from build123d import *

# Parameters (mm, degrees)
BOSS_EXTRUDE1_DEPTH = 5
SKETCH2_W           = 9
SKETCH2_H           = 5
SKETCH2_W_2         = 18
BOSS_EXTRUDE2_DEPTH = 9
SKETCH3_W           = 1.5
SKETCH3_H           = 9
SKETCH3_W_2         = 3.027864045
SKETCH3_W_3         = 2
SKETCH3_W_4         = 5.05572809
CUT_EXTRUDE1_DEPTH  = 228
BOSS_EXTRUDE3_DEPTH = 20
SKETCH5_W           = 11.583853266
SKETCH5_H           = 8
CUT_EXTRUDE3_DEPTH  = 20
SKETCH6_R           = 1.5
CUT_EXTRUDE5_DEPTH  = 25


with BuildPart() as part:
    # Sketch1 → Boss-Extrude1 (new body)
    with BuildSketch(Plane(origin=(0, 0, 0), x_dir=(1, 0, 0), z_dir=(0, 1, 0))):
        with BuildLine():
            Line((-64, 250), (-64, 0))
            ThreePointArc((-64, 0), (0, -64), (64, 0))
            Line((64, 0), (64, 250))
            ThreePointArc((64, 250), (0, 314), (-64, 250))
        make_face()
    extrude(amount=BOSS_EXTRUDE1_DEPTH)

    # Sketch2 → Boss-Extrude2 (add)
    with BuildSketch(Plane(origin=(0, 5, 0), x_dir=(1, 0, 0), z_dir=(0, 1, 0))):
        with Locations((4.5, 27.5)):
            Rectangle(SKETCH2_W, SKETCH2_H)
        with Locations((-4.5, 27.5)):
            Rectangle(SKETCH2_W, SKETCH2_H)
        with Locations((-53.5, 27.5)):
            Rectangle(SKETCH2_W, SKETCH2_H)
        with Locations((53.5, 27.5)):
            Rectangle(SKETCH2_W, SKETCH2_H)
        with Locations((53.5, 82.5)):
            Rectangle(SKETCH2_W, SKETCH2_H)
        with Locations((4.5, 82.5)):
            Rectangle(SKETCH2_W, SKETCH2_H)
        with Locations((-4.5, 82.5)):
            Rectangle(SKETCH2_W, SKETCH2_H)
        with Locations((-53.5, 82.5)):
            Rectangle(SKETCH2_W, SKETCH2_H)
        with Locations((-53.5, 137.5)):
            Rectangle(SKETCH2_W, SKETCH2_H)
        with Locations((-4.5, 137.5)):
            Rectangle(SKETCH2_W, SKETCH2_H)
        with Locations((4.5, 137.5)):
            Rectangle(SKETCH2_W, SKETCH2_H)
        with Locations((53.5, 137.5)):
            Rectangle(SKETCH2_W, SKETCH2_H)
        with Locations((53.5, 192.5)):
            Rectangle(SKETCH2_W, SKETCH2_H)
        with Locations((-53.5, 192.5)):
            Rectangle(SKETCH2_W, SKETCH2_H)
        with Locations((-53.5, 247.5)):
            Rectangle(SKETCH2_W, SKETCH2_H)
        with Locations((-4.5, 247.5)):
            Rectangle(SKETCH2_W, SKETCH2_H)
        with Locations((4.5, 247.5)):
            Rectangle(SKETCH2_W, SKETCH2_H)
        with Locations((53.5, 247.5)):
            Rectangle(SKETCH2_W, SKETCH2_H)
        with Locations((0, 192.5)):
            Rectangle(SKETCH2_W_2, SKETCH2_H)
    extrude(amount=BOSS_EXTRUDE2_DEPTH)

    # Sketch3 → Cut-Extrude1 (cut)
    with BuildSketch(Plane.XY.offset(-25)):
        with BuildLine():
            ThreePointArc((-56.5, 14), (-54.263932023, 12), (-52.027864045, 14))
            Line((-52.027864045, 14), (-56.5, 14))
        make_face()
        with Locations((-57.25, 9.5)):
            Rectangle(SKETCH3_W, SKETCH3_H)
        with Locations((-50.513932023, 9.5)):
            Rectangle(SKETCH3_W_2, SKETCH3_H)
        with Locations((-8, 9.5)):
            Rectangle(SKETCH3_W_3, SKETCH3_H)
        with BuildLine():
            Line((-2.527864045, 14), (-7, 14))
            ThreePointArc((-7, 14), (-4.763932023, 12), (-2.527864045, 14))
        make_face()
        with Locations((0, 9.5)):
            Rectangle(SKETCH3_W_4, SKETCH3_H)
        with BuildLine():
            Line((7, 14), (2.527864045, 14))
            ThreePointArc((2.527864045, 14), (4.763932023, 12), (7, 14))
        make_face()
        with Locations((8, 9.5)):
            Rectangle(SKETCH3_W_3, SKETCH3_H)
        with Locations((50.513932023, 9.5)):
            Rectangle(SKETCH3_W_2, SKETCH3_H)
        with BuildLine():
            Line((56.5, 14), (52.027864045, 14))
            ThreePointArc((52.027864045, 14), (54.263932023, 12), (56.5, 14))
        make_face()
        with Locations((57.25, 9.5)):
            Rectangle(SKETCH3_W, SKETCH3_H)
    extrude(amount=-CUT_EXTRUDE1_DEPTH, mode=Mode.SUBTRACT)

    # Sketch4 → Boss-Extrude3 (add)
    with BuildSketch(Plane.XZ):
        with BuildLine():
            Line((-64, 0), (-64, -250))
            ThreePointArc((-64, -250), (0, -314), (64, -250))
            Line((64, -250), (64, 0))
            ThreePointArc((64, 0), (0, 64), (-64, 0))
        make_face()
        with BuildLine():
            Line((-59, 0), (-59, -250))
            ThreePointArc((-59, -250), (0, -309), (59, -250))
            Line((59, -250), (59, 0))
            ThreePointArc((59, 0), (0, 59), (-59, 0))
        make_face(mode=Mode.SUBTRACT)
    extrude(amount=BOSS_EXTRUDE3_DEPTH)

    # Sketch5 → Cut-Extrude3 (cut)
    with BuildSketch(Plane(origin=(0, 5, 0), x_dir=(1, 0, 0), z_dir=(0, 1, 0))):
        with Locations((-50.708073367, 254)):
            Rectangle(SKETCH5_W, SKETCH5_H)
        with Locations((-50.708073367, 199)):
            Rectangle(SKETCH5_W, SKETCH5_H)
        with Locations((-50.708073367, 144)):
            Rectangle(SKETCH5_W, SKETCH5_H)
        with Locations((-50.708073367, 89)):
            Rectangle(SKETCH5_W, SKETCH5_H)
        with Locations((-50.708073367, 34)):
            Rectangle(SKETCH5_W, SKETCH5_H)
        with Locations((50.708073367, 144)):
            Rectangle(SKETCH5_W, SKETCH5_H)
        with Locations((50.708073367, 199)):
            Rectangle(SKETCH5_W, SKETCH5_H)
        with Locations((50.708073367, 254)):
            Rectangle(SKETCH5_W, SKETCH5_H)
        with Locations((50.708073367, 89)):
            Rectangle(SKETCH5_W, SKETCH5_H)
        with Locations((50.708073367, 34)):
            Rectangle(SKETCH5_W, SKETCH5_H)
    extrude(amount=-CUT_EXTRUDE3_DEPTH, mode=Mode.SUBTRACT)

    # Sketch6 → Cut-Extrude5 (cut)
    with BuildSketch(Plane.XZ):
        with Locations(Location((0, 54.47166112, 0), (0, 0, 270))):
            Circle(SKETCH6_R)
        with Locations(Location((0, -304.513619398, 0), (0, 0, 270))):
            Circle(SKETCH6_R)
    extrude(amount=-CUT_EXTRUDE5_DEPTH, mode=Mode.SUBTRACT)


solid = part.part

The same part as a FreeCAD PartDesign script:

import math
import FreeCAD as App
import Part
import Sketcher

doc = App.newDocument("Part")
body = doc.addObject("PartDesign::Body", "Body")

# Sketch on XZ plane
sketch1 = doc.addObject("Sketcher::SketchObject", "Sketch")
body.addObject(sketch1)
sketch1.AttachmentSupport = (doc.XZ_Plane, [""])
sketch1.MapMode = "FlatFace"
sketch1.addGeometry(Part.LineSegment(App.Vector(-64, -250, 0), App.Vector(-64, 0, 0)), False)
sketch1.addGeometry(Part.ArcOfCircle(Part.Circle(App.Vector(0, 0, 0), App.Vector(0, 0, 1), 64), math.radians(0), math.radians(180)), False)
sketch1.addGeometry(Part.LineSegment(App.Vector(64, 0, 0), App.Vector(64, -250, 0)), False)
sketch1.addGeometry(Part.ArcOfCircle(Part.Circle(App.Vector(0, -250, 0), App.Vector(0, 0, 1), 64), math.radians(180), math.radians(360)), False)
sketch1.addConstraint(Sketcher.Constraint("Tangent", 0, 2, 1, 2))
sketch1.addConstraint(Sketcher.Constraint("Tangent", 1, 1, 2, 1))
sketch1.addConstraint(Sketcher.Constraint("Tangent", 2, 2, 3, 2))
sketch1.addConstraint(Sketcher.Constraint("Tangent", 3, 1, 0, 1))
sketch1.addConstraint(Sketcher.Constraint("Vertical", 0))
sketch1.addConstraint(Sketcher.Constraint("Vertical", 2))
sketch1.addConstraint(Sketcher.Constraint("Coincident", 1, 3, -1, 1))
sketch1.addConstraint(Sketcher.Constraint("Radius", 1, 64.0))
sketch1.addConstraint(Sketcher.Constraint("DistanceY", 0, 1, 0, 2, 250.0))
pad1 = doc.addObject("PartDesign::Pad", "Pad")
body.addObject(pad1)
pad1.Profile = sketch1
pad1.Length = 5
pad1.Reversed = True

# Sketch on XZ plane
sketch2 = doc.addObject("Sketcher::SketchObject", "Sketch001")
body.addObject(sketch2)
sketch2.AttachmentSupport = (doc.XZ_Plane, [""])
sketch2.MapMode = "FlatFace"
sketch2.AttachmentOffset = App.Placement(App.Vector(0, 0, -5), App.Rotation())
sketch2.addGeometry(Part.LineSegment(App.Vector(9, -25, 0), App.Vector(9, -30, 0)), False)
sketch2.addGeometry(Part.LineSegment(App.Vector(9, -30, 0), App.Vector(-9, -30, 0)), False)
sketch2.addGeometry(Part.LineSegment(App.Vector(-9, -30, 0), App.Vector(-9, -25, 0)), False)
sketch2.addGeometry(Part.LineSegment(App.Vector(-9, -25, 0), App.Vector(9, -25, 0)), False)
sketch2.addGeometry(Part.LineSegment(App.Vector(-58, -30, 0), App.Vector(-58, -25, 0)), False)
sketch2.addGeometry(Part.LineSegment(App.Vector(-58, -25, 0), App.Vector(-49, -25, 0)), False)
sketch2.addGeometry(Part.LineSegment(App.Vector(-49, -25, 0), App.Vector(-49, -30, 0)), False)
sketch2.addGeometry(Part.LineSegment(App.Vector(-49, -30, 0), App.Vector(-58, -30, 0)), False)
sketch2.addGeometry(Part.LineSegment(App.Vector(49, -30, 0), App.Vector(49, -25, 0)), False)
sketch2.addGeometry(Part.LineSegment(App.Vector(49, -25, 0), App.Vector(58, -25, 0)), False)
sketch2.addGeometry(Part.LineSegment(App.Vector(58, -25, 0), App.Vector(58, -30, 0)), False)
sketch2.addGeometry(Part.LineSegment(App.Vector(58, -30, 0), App.Vector(49, -30, 0)), False)
sketch2.addGeometry(Part.LineSegment(App.Vector(49, -85, 0), App.Vector(49, -80, 0)), False)
sketch2.addGeometry(Part.LineSegment(App.Vector(49, -80, 0), App.Vector(58, -80, 0)), False)
sketch2.addGeometry(Part.LineSegment(App.Vector(58, -80, 0), App.Vector(58, -85, 0)), False)
sketch2.addGeometry(Part.LineSegment(App.Vector(58, -85, 0), App.Vector(49, -85, 0)), False)
sketch2.addGeometry(Part.LineSegment(App.Vector(9, -80, 0), App.Vector(9, -85, 0)), False)
sketch2.addGeometry(Part.LineSegment(App.Vector(9, -85, 0), App.Vector(-9, -85, 0)), False)
sketch2.addGeometry(Part.LineSegment(App.Vector(-9, -85, 0), App.Vector(-9, -80, 0)), False)
sketch2.addGeometry(Part.LineSegment(App.Vector(-9, -80, 0), App.Vector(9, -80, 0)), False)
sketch2.addGeometry(Part.LineSegment(App.Vector(-58, -85, 0), App.Vector(-58, -80, 0)), False)
sketch2.addGeometry(Part.LineSegment(App.Vector(-58, -80, 0), App.Vector(-49, -80, 0)), False)
sketch2.addGeometry(Part.LineSegment(App.Vector(-49, -80, 0), App.Vector(-49, -85, 0)), False)
sketch2.addGeometry(Part.LineSegment(App.Vector(-49, -85, 0), App.Vector(-58, -85, 0)), False)
sketch2.addGeometry(Part.LineSegment(App.Vector(-58, -140, 0), App.Vector(-58, -135, 0)), False)
sketch2.addGeometry(Part.LineSegment(App.Vector(-58, -135, 0), App.Vector(-49, -135, 0)), False)
sketch2.addGeometry(Part.LineSegment(App.Vector(-49, -135, 0), App.Vector(-49, -140, 0)), False)
sketch2.addGeometry(Part.LineSegment(App.Vector(-49, -140, 0), App.Vector(-58, -140, 0)), False)
sketch2.addGeometry(Part.LineSegment(App.Vector(-9, -140, 0), App.Vector(-9, -135, 0)), False)
sketch2.addGeometry(Part.LineSegment(App.Vector(-9, -135, 0), App.Vector(9, -135, 0)), False)
sketch2.addGeometry(Part.LineSegment(App.Vector(9, -135, 0), App.Vector(9, -140, 0)), False)
sketch2.addGeometry(Part.LineSegment(App.Vector(9, -140, 0), App.Vector(-9, -140, 0)), False)
sketch2.addGeometry(Part.LineSegment(App.Vector(49, -140, 0), App.Vector(49, -135, 0)), False)
sketch2.addGeometry(Part.LineSegment(App.Vector(49, -135, 0), App.Vector(58, -135, 0)), False)
sketch2.addGeometry(Part.LineSegment(App.Vector(58, -135, 0), App.Vector(58, -140, 0)), False)
sketch2.addGeometry(Part.LineSegment(App.Vector(58, -140, 0), App.Vector(49, -140, 0)), False)
sketch2.addGeometry(Part.LineSegment(App.Vector(49, -195, 0), App.Vector(49, -190, 0)), False)
sketch2.addGeometry(Part.LineSegment(App.Vector(49, -190, 0), App.Vector(58, -190, 0)), False)
sketch2.addGeometry(Part.LineSegment(App.Vector(58, -190, 0), App.Vector(58, -195, 0)), False)
sketch2.addGeometry(Part.LineSegment(App.Vector(58, -195, 0), App.Vector(49, -195, 0)), False)
sketch2.addGeometry(Part.LineSegment(App.Vector(-58, -195, 0), App.Vector(-58, -190, 0)), False)
sketch2.addGeometry(Part.LineSegment(App.Vector(-58, -190, 0), App.Vector(-49, -190, 0)), False)
sketch2.addGeometry(Part.LineSegment(App.Vector(-49, -190, 0), App.Vector(-49, -195, 0)), False)
sketch2.addGeometry(Part.LineSegment(App.Vector(-49, -195, 0), App.Vector(-58, -195, 0)), False)
sketch2.addGeometry(Part.LineSegment(App.Vector(-58, -250, 0), App.Vector(-58, -245, 0)), False)
sketch2.addGeometry(Part.LineSegment(App.Vector(-58, -245, 0), App.Vector(-49, -245, 0)), False)
sketch2.addGeometry(Part.LineSegment(App.Vector(-49, -245, 0), App.Vector(-49, -250, 0)), False)
sketch2.addGeometry(Part.LineSegment(App.Vector(-49, -250, 0), App.Vector(-58, -250, 0)), False)
sketch2.addGeometry(Part.LineSegment(App.Vector(-9, -250, 0), App.Vector(-9, -245, 0)), False)
sketch2.addGeometry(Part.LineSegment(App.Vector(-9, -245, 0), App.Vector(9, -245, 0)), False)
sketch2.addGeometry(Part.LineSegment(App.Vector(9, -245, 0), App.Vector(9, -250, 0)), False)
sketch2.addGeometry(Part.LineSegment(App.Vector(9, -250, 0), App.Vector(-9, -250, 0)), False)
sketch2.addGeometry(Part.LineSegment(App.Vector(49, -250, 0), App.Vector(49, -245, 0)), False)
sketch2.addGeometry(Part.LineSegment(App.Vector(49, -245, 0), App.Vector(58, -245, 0)), False)
sketch2.addGeometry(Part.LineSegment(App.Vector(58, -245, 0), App.Vector(58, -250, 0)), False)
sketch2.addGeometry(Part.LineSegment(App.Vector(58, -250, 0), App.Vector(49, -250, 0)), False)
sketch2.addGeometry(Part.LineSegment(App.Vector(-9, -195, 0), App.Vector(-9, -190, 0)), False)
sketch2.addGeometry(Part.LineSegment(App.Vector(-9, -190, 0), App.Vector(9, -190, 0)), False)
sketch2.addGeometry(Part.LineSegment(App.Vector(9, -190, 0), App.Vector(9, -195, 0)), False)
sketch2.addGeometry(Part.LineSegment(App.Vector(9, -195, 0), App.Vector(-9, -195, 0)), False)
sketch2.addConstraint(Sketcher.Constraint("Coincident", 0, 2, 1, 1))
sketch2.addConstraint(Sketcher.Constraint("Coincident", 1, 2, 2, 1))
sketch2.addConstraint(Sketcher.Constraint("Coincident", 2, 2, 3, 1))
sketch2.addConstraint(Sketcher.Constraint("Coincident", 3, 2, 0, 1))
sketch2.addConstraint(Sketcher.Constraint("Coincident", 4, 2, 5, 1))
sketch2.addConstraint(Sketcher.Constraint("Coincident", 5, 2, 6, 1))
sketch2.addConstraint(Sketcher.Constraint("Coincident", 6, 2, 7, 1))
sketch2.addConstraint(Sketcher.Constraint("Coincident", 7, 2, 4, 1))
sketch2.addConstraint(Sketcher.Constraint("Coincident", 8, 2, 9, 1))
sketch2.addConstraint(Sketcher.Constraint("Coincident", 9, 2, 10, 1))
sketch2.addConstraint(Sketcher.Constraint("Coincident", 10, 2, 11, 1))
sketch2.addConstraint(Sketcher.Constraint("Coincident", 11, 2, 8, 1))
sketch2.addConstraint(Sketcher.Constraint("Coincident", 12, 2, 13, 1))
sketch2.addConstraint(Sketcher.Constraint("Coincident", 13, 2, 14, 1))
sketch2.addConstraint(Sketcher.Constraint("Coincident", 14, 2, 15, 1))
sketch2.addConstraint(Sketcher.Constraint("Coincident", 15, 2, 12, 1))
sketch2.addConstraint(Sketcher.Constraint("Coincident", 16, 2, 17, 1))
sketch2.addConstraint(Sketcher.Constraint("Coincident", 17, 2, 18, 1))
sketch2.addConstraint(Sketcher.Constraint("Coincident", 18, 2, 19, 1))
sketch2.addConstraint(Sketcher.Constraint("Coincident", 19, 2, 16, 1))
sketch2.addConstraint(Sketcher.Constraint("Coincident", 20, 2, 21, 1))
sketch2.addConstraint(Sketcher.Constraint("Coincident", 21, 2, 22, 1))
sketch2.addConstraint(Sketcher.Constraint("Coincident", 22, 2, 23, 1))
sketch2.addConstraint(Sketcher.Constraint("Coincident", 23, 2, 20, 1))
sketch2.addConstraint(Sketcher.Constraint("Coincident", 24, 2, 25, 1))
sketch2.addConstraint(Sketcher.Constraint("Coincident", 25, 2, 26, 1))
sketch2.addConstraint(Sketcher.Constraint("Coincident", 26, 2, 27, 1))
sketch2.addConstraint(Sketcher.Constraint("Coincident", 27, 2, 24, 1))
sketch2.addConstraint(Sketcher.Constraint("Coincident", 28, 2, 29, 1))
sketch2.addConstraint(Sketcher.Constraint("Coincident", 29, 2, 30, 1))
sketch2.addConstraint(Sketcher.Constraint("Coincident", 30, 2, 31, 1))
sketch2.addConstraint(Sketcher.Constraint("Coincident", 31, 2, 28, 1))
sketch2.addConstraint(Sketcher.Constraint("Coincident", 32, 2, 33, 1))
sketch2.addConstraint(Sketcher.Constraint("Coincident", 33, 2, 34, 1))
sketch2.addConstraint(Sketcher.Constraint("Coincident", 34, 2, 35, 1))
sketch2.addConstraint(Sketcher.Constraint("Coincident", 35, 2, 32, 1))
sketch2.addConstraint(Sketcher.Constraint("Coincident", 36, 2, 37, 1))
sketch2.addConstraint(Sketcher.Constraint("Coincident", 37, 2, 38, 1))
sketch2.addConstraint(Sketcher.Constraint("Coincident", 38, 2, 39, 1))
sketch2.addConstraint(Sketcher.Constraint("Coincident", 39, 2, 36, 1))
sketch2.addConstraint(Sketcher.Constraint("Coincident", 40, 2, 41, 1))
sketch2.addConstraint(Sketcher.Constraint("Coincident", 41, 2, 42, 1))
sketch2.addConstraint(Sketcher.Constraint("Coincident", 42, 2, 43, 1))
sketch2.addConstraint(Sketcher.Constraint("Coincident", 43, 2, 40, 1))
sketch2.addConstraint(Sketcher.Constraint("Coincident", 44, 2, 45, 1))
sketch2.addConstraint(Sketcher.Constraint("Coincident", 45, 2, 46, 1))
sketch2.addConstraint(Sketcher.Constraint("Coincident", 46, 2, 47, 1))
sketch2.addConstraint(Sketcher.Constraint("Coincident", 47, 2, 44, 1))
sketch2.addConstraint(Sketcher.Constraint("Coincident", 48, 2, 49, 1))
sketch2.addConstraint(Sketcher.Constraint("Coincident", 49, 2, 50, 1))
sketch2.addConstraint(Sketcher.Constraint("Coincident", 50, 2, 51, 1))
sketch2.addConstraint(Sketcher.Constraint("Coincident", 51, 2, 48, 1))
sketch2.addConstraint(Sketcher.Constraint("Coincident", 52, 2, 53, 1))
sketch2.addConstraint(Sketcher.Constraint("Coincident", 53, 2, 54, 1))
sketch2.addConstraint(Sketcher.Constraint("Coincident", 54, 2, 55, 1))
sketch2.addConstraint(Sketcher.Constraint("Coincident", 55, 2, 52, 1))
sketch2.addConstraint(Sketcher.Constraint("Coincident", 56, 2, 57, 1))
sketch2.addConstraint(Sketcher.Constraint("Coincident", 57, 2, 58, 1))
sketch2.addConstraint(Sketcher.Constraint("Coincident", 58, 2, 59, 1))
sketch2.addConstraint(Sketcher.Constraint("Coincident", 59, 2, 56, 1))
sketch2.addConstraint(Sketcher.Constraint("Vertical", 0))
sketch2.addConstraint(Sketcher.Constraint("Horizontal", 1))
sketch2.addConstraint(Sketcher.Constraint("Vertical", 2))
sketch2.addConstraint(Sketcher.Constraint("Horizontal", 3))
sketch2.addConstraint(Sketcher.Constraint("Vertical", 4))
sketch2.addConstraint(Sketcher.Constraint("Horizontal", 5))
sketch2.addConstraint(Sketcher.Constraint("Vertical", 6))
sketch2.addConstraint(Sketcher.Constraint("Horizontal", 7))
sketch2.addConstraint(Sketcher.Constraint("Vertical", 8))
sketch2.addConstraint(Sketcher.Constraint("Horizontal", 9))
sketch2.addConstraint(Sketcher.Constraint("Vertical", 10))
sketch2.addConstraint(Sketcher.Constraint("Horizontal", 11))
sketch2.addConstraint(Sketcher.Constraint("Vertical", 12))
sketch2.addConstraint(Sketcher.Constraint("Horizontal", 13))
sketch2.addConstraint(Sketcher.Constraint("Vertical", 14))
sketch2.addConstraint(Sketcher.Constraint("Horizontal", 15))
sketch2.addConstraint(Sketcher.Constraint("Vertical", 16))
sketch2.addConstraint(Sketcher.Constraint("Horizontal", 17))
sketch2.addConstraint(Sketcher.Constraint("Vertical", 18))
sketch2.addConstraint(Sketcher.Constraint("Horizontal", 19))
sketch2.addConstraint(Sketcher.Constraint("Vertical", 20))
sketch2.addConstraint(Sketcher.Constraint("Horizontal", 21))
sketch2.addConstraint(Sketcher.Constraint("Vertical", 22))
sketch2.addConstraint(Sketcher.Constraint("Horizontal", 23))
sketch2.addConstraint(Sketcher.Constraint("Vertical", 24))
sketch2.addConstraint(Sketcher.Constraint("Horizontal", 25))
sketch2.addConstraint(Sketcher.Constraint("Vertical", 26))
sketch2.addConstraint(Sketcher.Constraint("Horizontal", 27))
sketch2.addConstraint(Sketcher.Constraint("Vertical", 28))
sketch2.addConstraint(Sketcher.Constraint("Horizontal", 29))
sketch2.addConstraint(Sketcher.Constraint("Vertical", 30))
sketch2.addConstraint(Sketcher.Constraint("Horizontal", 31))
sketch2.addConstraint(Sketcher.Constraint("Vertical", 32))
sketch2.addConstraint(Sketcher.Constraint("Horizontal", 33))
sketch2.addConstraint(Sketcher.Constraint("Vertical", 34))
sketch2.addConstraint(Sketcher.Constraint("Horizontal", 35))
sketch2.addConstraint(Sketcher.Constraint("Vertical", 36))
sketch2.addConstraint(Sketcher.Constraint("Horizontal", 37))
sketch2.addConstraint(Sketcher.Constraint("Vertical", 38))
sketch2.addConstraint(Sketcher.Constraint("Horizontal", 39))
sketch2.addConstraint(Sketcher.Constraint("Vertical", 40))
sketch2.addConstraint(Sketcher.Constraint("Horizontal", 41))
sketch2.addConstraint(Sketcher.Constraint("Vertical", 42))
sketch2.addConstraint(Sketcher.Constraint("Horizontal", 43))
sketch2.addConstraint(Sketcher.Constraint("Vertical", 44))
sketch2.addConstraint(Sketcher.Constraint("Horizontal", 45))
sketch2.addConstraint(Sketcher.Constraint("Vertical", 46))
sketch2.addConstraint(Sketcher.Constraint("Horizontal", 47))
sketch2.addConstraint(Sketcher.Constraint("Vertical", 48))
sketch2.addConstraint(Sketcher.Constraint("Horizontal", 49))
sketch2.addConstraint(Sketcher.Constraint("Vertical", 50))
sketch2.addConstraint(Sketcher.Constraint("Horizontal", 51))
sketch2.addConstraint(Sketcher.Constraint("Vertical", 52))
sketch2.addConstraint(Sketcher.Constraint("Horizontal", 53))
sketch2.addConstraint(Sketcher.Constraint("Vertical", 54))
sketch2.addConstraint(Sketcher.Constraint("Horizontal", 55))
sketch2.addConstraint(Sketcher.Constraint("Vertical", 56))
sketch2.addConstraint(Sketcher.Constraint("Horizontal", 57))
sketch2.addConstraint(Sketcher.Constraint("Vertical", 58))
sketch2.addConstraint(Sketcher.Constraint("Horizontal", 59))
sketch2.addConstraint(Sketcher.Constraint("Symmetric", 5, 2, 8, 2, -2))
sketch2.addConstraint(Sketcher.Constraint("Symmetric", 7, 2, 10, 2, -2))
sketch2.addConstraint(Sketcher.Constraint("Symmetric", 13, 2, 20, 2, -2))
sketch2.addConstraint(Sketcher.Constraint("Symmetric", 15, 2, 22, 2, -2))
sketch2.addConstraint(Sketcher.Constraint("Symmetric", 25, 2, 32, 2, -2))
sketch2.addConstraint(Sketcher.Constraint("Symmetric", 27, 2, 34, 2, -2))
sketch2.addConstraint(Sketcher.Constraint("Symmetric", 37, 2, 40, 2, -2))
sketch2.addConstraint(Sketcher.Constraint("Symmetric", 39, 2, 42, 2, -2))
sketch2.addConstraint(Sketcher.Constraint("Symmetric", 45, 2, 52, 2, -2))
sketch2.addConstraint(Sketcher.Constraint("Symmetric", 47, 2, 54, 2, -2))
sketch2.addConstraint(Sketcher.Constraint("Horizontal", 3, 2, 4, 2))
sketch2.addConstraint(Sketcher.Constraint("Horizontal", 1, 2, 6, 2))
sketch2.addConstraint(Sketcher.Constraint("Horizontal", 15, 2, 16, 2))
sketch2.addConstraint(Sketcher.Constraint("Horizontal", 13, 2, 18, 2))
sketch2.addConstraint(Sketcher.Constraint("Horizontal", 25, 2, 28, 2))
sketch2.addConstraint(Sketcher.Constraint("Horizontal", 27, 2, 30, 2))
sketch2.addConstraint(Sketcher.Constraint("Horizontal", 45, 2, 48, 2))
sketch2.addConstraint(Sketcher.Constraint("Horizontal", 47, 2, 50, 2))
sketch2.addConstraint(Sketcher.Constraint("Horizontal", 41, 2, 56, 2))
sketch2.addConstraint(Sketcher.Constraint("Horizontal", 43, 2, 58, 2))
sketch2.addConstraint(Sketcher.Constraint("Vertical", 11, 2, 12, 2))
sketch2.addConstraint(Sketcher.Constraint("Vertical", 10, 2, 13, 2))
sketch2.addConstraint(Sketcher.Constraint("Vertical", 3, 2, 16, 2))
sketch2.addConstraint(Sketcher.Constraint("Vertical", 2, 2, 17, 2))
sketch2.addConstraint(Sketcher.Constraint("Vertical", 23, 2, 24, 2))
sketch2.addConstraint(Sketcher.Constraint("Vertical", 22, 2, 25, 2))
sketch2.addConstraint(Sketcher.Constraint("Vertical", 18, 2, 28, 2))
sketch2.addConstraint(Sketcher.Constraint("Vertical", 19, 2, 29, 2))
sketch2.addConstraint(Sketcher.Constraint("Vertical", 35, 2, 36, 2))
sketch2.addConstraint(Sketcher.Constraint("Vertical", 34, 2, 37, 2))
sketch2.addConstraint(Sketcher.Constraint("Vertical", 43, 2, 44, 2))
sketch2.addConstraint(Sketcher.Constraint("Vertical", 42, 2, 45, 2))
sketch2.addConstraint(Sketcher.Constraint("Vertical", 31, 2, 48, 2))
sketch2.addConstraint(Sketcher.Constraint("Vertical", 30, 2, 49, 2))
sketch2.addConstraint(Sketcher.Constraint("Vertical", 51, 2, 56, 2))
sketch2.addConstraint(Sketcher.Constraint("Vertical", 50, 2, 57, 2))
sketch2.addConstraint(Sketcher.Constraint("Equal", 10, 12))
sketch2.addConstraint(Sketcher.Constraint("Equal", 22, 24))
sketch2.addConstraint(Sketcher.Constraint("Equal", 34, 36))
sketch2.addConstraint(Sketcher.Constraint("Equal", 42, 44))
sketch2.addConstraint(Sketcher.Constraint("DistanceX", 1, 2, 1, 1, 18.0))
sketch2.addConstraint(Sketcher.Constraint("DistanceX", 5, 1, 5, 2, 9.0))
sketch2.addConstraint(Sketcher.Constraint("DistanceY", 0, 2, 0, 1, 5.0))
sketch2.addConstraint(Sketcher.Constraint("DistanceX", -1, 1, 0, 2, 9.0))
sketch2.addConstraint(Sketcher.Constraint("DistanceY", 0, 2, -1, 1, 30.0))
sketch2.addConstraint(Sketcher.Constraint("DistanceX", 4, 2, -1, 1, 58.0))
sketch2.addConstraint(Sketcher.Constraint("DistanceY", 12, 2, -1, 1, 80.0))
sketch2.addConstraint(Sketcher.Constraint("DistanceY", 24, 2, -1, 1, 135.0))
sketch2.addConstraint(Sketcher.Constraint("DistanceY", 36, 2, -1, 1, 190.0))
sketch2.addConstraint(Sketcher.Constraint("DistanceY", 44, 2, -1, 1, 245.0))
pad2 = doc.addObject("PartDesign::Pad", "Pad001")
body.addObject(pad2)
pad2.Profile = sketch2
pad2.Length = 9
pad2.Reversed = True

# Sketch on XY plane
sketch3 = doc.addObject("Sketcher::SketchObject", "Sketch002")
body.addObject(sketch3)
sketch3.AttachmentSupport = (doc.XY_Plane, [""])
sketch3.MapMode = "FlatFace"
sketch3.AttachmentOffset = App.Placement(App.Vector(0, 0, -25), App.Rotation())
sketch3.addGeometry(Part.ArcOfCircle(Part.Circle(App.Vector(-54.3, 14.2, 0), App.Vector(0, 0, 1), 2.2), math.radians(-174), math.radians(-6)), False)
sketch3.addGeometry(Part.LineSegment(App.Vector(-52, 14, 0), App.Vector(-56.5, 14, 0)), False)
sketch3.addGeometry(Part.LineSegment(App.Vector(-58, 14, 0), App.Vector(-58, 5, 0)), False)
sketch3.addGeometry(Part.LineSegment(App.Vector(-58, 5, 0), App.Vector(-56.5, 5, 0)), False)
sketch3.addGeometry(Part.LineSegment(App.Vector(-56.5, 5, 0), App.Vector(-56.5, 14, 0)), False)
sketch3.addGeometry(Part.LineSegment(App.Vector(-56.5, 14, 0), App.Vector(-58, 14, 0)), False)
sketch3.addGeometry(Part.LineSegment(App.Vector(-52, 14, 0), App.Vector(-52, 5, 0)), False)
sketch3.addGeometry(Part.LineSegment(App.Vector(-52, 5, 0), App.Vector(-49, 5, 0)), False)
sketch3.addGeometry(Part.LineSegment(App.Vector(-49, 5, 0), App.Vector(-49, 14, 0)), False)
sketch3.addGeometry(Part.LineSegment(App.Vector(-49, 14, 0), App.Vector(-52, 14, 0)), False)
sketch3.addGeometry(Part.LineSegment(App.Vector(-9, 14, 0), App.Vector(-9, 5, 0)), False)
sketch3.addGeometry(Part.LineSegment(App.Vector(-9, 5, 0), App.Vector(-7, 5, 0)), False)
sketch3.addGeometry(Part.LineSegment(App.Vector(-7, 5, 0), App.Vector(-7, 14, 0)), False)
sketch3.addGeometry(Part.LineSegment(App.Vector(-7, 14, 0), App.Vector(-9, 14, 0)), False)
sketch3.addGeometry(Part.LineSegment(App.Vector(-2.5, 14, 0), App.Vector(-7, 14, 0)), False)
sketch3.addGeometry(Part.ArcOfCircle(Part.Circle(App.Vector(-4.8, 14.2, 0), App.Vector(0, 0, 1), 2.2), math.radians(-174), math.radians(-6)), False)
sketch3.addGeometry(Part.LineSegment(App.Vector(-2.5, 14, 0), App.Vector(-2.5, 5, 0)), False)
sketch3.addGeometry(Part.LineSegment(App.Vector(-2.5, 5, 0), App.Vector(2.5, 5, 0)), False)
sketch3.addGeometry(Part.LineSegment(App.Vector(2.5, 5, 0), App.Vector(2.5, 14, 0)), False)
sketch3.addGeometry(Part.LineSegment(App.Vector(2.5, 14, 0), App.Vector(-2.5, 14, 0)), False)
sketch3.addGeometry(Part.LineSegment(App.Vector(7, 14, 0), App.Vector(2.5, 14, 0)), False)
sketch3.addGeometry(Part.ArcOfCircle(Part.Circle(App.Vector(4.8, 14.2, 0), App.Vector(0, 0, 1), 2.2), math.radians(-174), math.radians(-6)), False)
sketch3.addGeometry(Part.LineSegment(App.Vector(7, 14, 0), App.Vector(7, 5, 0)), False)
sketch3.addGeometry(Part.LineSegment(App.Vector(7, 5, 0), App.Vector(9, 5, 0)), False)
sketch3.addGeometry(Part.LineSegment(App.Vector(9, 5, 0), App.Vector(9, 14, 0)), False)
sketch3.addGeometry(Part.LineSegment(App.Vector(9, 14, 0), App.Vector(7, 14, 0)), False)
sketch3.addGeometry(Part.LineSegment(App.Vector(49, 14, 0), App.Vector(49, 5, 0)), False)
sketch3.addGeometry(Part.LineSegment(App.Vector(49, 5, 0), App.Vector(52, 5, 0)), False)
sketch3.addGeometry(Part.LineSegment(App.Vector(52, 5, 0), App.Vector(52, 14, 0)), False)
sketch3.addGeometry(Part.LineSegment(App.Vector(52, 14, 0), App.Vector(49, 14, 0)), False)
sketch3.addGeometry(Part.LineSegment(App.Vector(56.5, 14, 0), App.Vector(52, 14, 0)), False)
sketch3.addGeometry(Part.ArcOfCircle(Part.Circle(App.Vector(54.3, 14.2, 0), App.Vector(0, 0, 1), 2.2), math.radians(-174), math.radians(-6)), False)
sketch3.addGeometry(Part.LineSegment(App.Vector(56.5, 14, 0), App.Vector(56.5, 5, 0)), False)
sketch3.addGeometry(Part.LineSegment(App.Vector(56.5, 5, 0), App.Vector(58, 5, 0)), False)
sketch3.addGeometry(Part.LineSegment(App.Vector(58, 5, 0), App.Vector(58, 14, 0)), False)
sketch3.addGeometry(Part.LineSegment(App.Vector(58, 14, 0), App.Vector(56.5, 14, 0)), False)
sketch3.addConstraint(Sketcher.Constraint("Coincident", 0, 1, 1, 2))
sketch3.addConstraint(Sketcher.Constraint("Coincident", 1, 1, 0, 2))
sketch3.addConstraint(Sketcher.Constraint("Coincident", 2, 2, 3, 1))
sketch3.addConstraint(Sketcher.Constraint("Coincident", 3, 2, 4, 1))
sketch3.addConstraint(Sketcher.Constraint("Coincident", 4, 2, 5, 1))
sketch3.addConstraint(Sketcher.Constraint("Coincident", 5, 2, 2, 1))
sketch3.addConstraint(Sketcher.Constraint("Coincident", 6, 2, 7, 1))
sketch3.addConstraint(Sketcher.Constraint("Coincident", 7, 2, 8, 1))
sketch3.addConstraint(Sketcher.Constraint("Coincident", 8, 2, 9, 1))
sketch3.addConstraint(Sketcher.Constraint("Coincident", 9, 2, 6, 1))
sketch3.addConstraint(Sketcher.Constraint("Coincident", 10, 2, 11, 1))
sketch3.addConstraint(Sketcher.Constraint("Coincident", 11, 2, 12, 1))
sketch3.addConstraint(Sketcher.Constraint("Coincident", 12, 2, 13, 1))
sketch3.addConstraint(Sketcher.Constraint("Coincident", 13, 2, 10, 1))
sketch3.addConstraint(Sketcher.Constraint("Coincident", 14, 1, 15, 2))
sketch3.addConstraint(Sketcher.Constraint("Coincident", 15, 1, 14, 2))
sketch3.addConstraint(Sketcher.Constraint("Coincident", 16, 2, 17, 1))
sketch3.addConstraint(Sketcher.Constraint("Coincident", 17, 2, 18, 1))
sketch3.addConstraint(Sketcher.Constraint("Coincident", 18, 2, 19, 1))
sketch3.addConstraint(Sketcher.Constraint("Coincident", 19, 2, 16, 1))
sketch3.addConstraint(Sketcher.Constraint("Coincident", 20, 1, 21, 2))
sketch3.addConstraint(Sketcher.Constraint("Coincident", 21, 1, 20, 2))
sketch3.addConstraint(Sketcher.Constraint("Coincident", 22, 2, 23, 1))
sketch3.addConstraint(Sketcher.Constraint("Coincident", 23, 2, 24, 1))
sketch3.addConstraint(Sketcher.Constraint("Coincident", 24, 2, 25, 1))
sketch3.addConstraint(Sketcher.Constraint("Coincident", 25, 2, 22, 1))
sketch3.addConstraint(Sketcher.Constraint("Coincident", 26, 2, 27, 1))
sketch3.addConstraint(Sketcher.Constraint("Coincident", 27, 2, 28, 1))
sketch3.addConstraint(Sketcher.Constraint("Coincident", 28, 2, 29, 1))
sketch3.addConstraint(Sketcher.Constraint("Coincident", 29, 2, 26, 1))
sketch3.addConstraint(Sketcher.Constraint("Coincident", 30, 1, 31, 2))
sketch3.addConstraint(Sketcher.Constraint("Coincident", 31, 1, 30, 2))
sketch3.addConstraint(Sketcher.Constraint("Coincident", 32, 2, 33, 1))
sketch3.addConstraint(Sketcher.Constraint("Coincident", 33, 2, 34, 1))
sketch3.addConstraint(Sketcher.Constraint("Coincident", 34, 2, 35, 1))
sketch3.addConstraint(Sketcher.Constraint("Coincident", 35, 2, 32, 1))
sketch3.addConstraint(Sketcher.Constraint("Horizontal", 1))
sketch3.addConstraint(Sketcher.Constraint("Vertical", 2))
sketch3.addConstraint(Sketcher.Constraint("Horizontal", 3))
sketch3.addConstraint(Sketcher.Constraint("Vertical", 4))
sketch3.addConstraint(Sketcher.Constraint("Horizontal", 5))
sketch3.addConstraint(Sketcher.Constraint("Vertical", 6))
sketch3.addConstraint(Sketcher.Constraint("Horizontal", 7))
sketch3.addConstraint(Sketcher.Constraint("Vertical", 8))
sketch3.addConstraint(Sketcher.Constraint("Horizontal", 9))
sketch3.addConstraint(Sketcher.Constraint("Vertical", 10))
sketch3.addConstraint(Sketcher.Constraint("Horizontal", 11))
sketch3.addConstraint(Sketcher.Constraint("Vertical", 12))
sketch3.addConstraint(Sketcher.Constraint("Horizontal", 13))
sketch3.addConstraint(Sketcher.Constraint("Horizontal", 14))
sketch3.addConstraint(Sketcher.Constraint("Vertical", 16))
sketch3.addConstraint(Sketcher.Constraint("Horizontal", 17))
sketch3.addConstraint(Sketcher.Constraint("Vertical", 18))
sketch3.addConstraint(Sketcher.Constraint("Horizontal", 19))
sketch3.addConstraint(Sketcher.Constraint("Horizontal", 20))
sketch3.addConstraint(Sketcher.Constraint("Vertical", 22))
sketch3.addConstraint(Sketcher.Constraint("Horizontal", 23))
sketch3.addConstraint(Sketcher.Constraint("Vertical", 24))
sketch3.addConstraint(Sketcher.Constraint("Horizontal", 25))
sketch3.addConstraint(Sketcher.Constraint("Vertical", 26))
sketch3.addConstraint(Sketcher.Constraint("Horizontal", 27))
sketch3.addConstraint(Sketcher.Constraint("Vertical", 28))
sketch3.addConstraint(Sketcher.Constraint("Horizontal", 29))
sketch3.addConstraint(Sketcher.Constraint("Horizontal", 30))
sketch3.addConstraint(Sketcher.Constraint("Vertical", 32))
sketch3.addConstraint(Sketcher.Constraint("Horizontal", 33))
sketch3.addConstraint(Sketcher.Constraint("Vertical", 34))
sketch3.addConstraint(Sketcher.Constraint("Horizontal", 35))
sketch3.addConstraint(Sketcher.Constraint("Coincident", 4, 2, 0, 1))
sketch3.addConstraint(Sketcher.Constraint("Coincident", 9, 2, 1, 1))
sketch3.addConstraint(Sketcher.Constraint("Coincident", 15, 1, 12, 2))
sketch3.addConstraint(Sketcher.Constraint("Coincident", 19, 2, 14, 1))
sketch3.addConstraint(Sketcher.Constraint("Coincident", 21, 1, 18, 2))
sketch3.addConstraint(Sketcher.Constraint("Coincident", 25, 2, 20, 1))
sketch3.addConstraint(Sketcher.Constraint("Coincident", 31, 1, 28, 2))
sketch3.addConstraint(Sketcher.Constraint("Coincident", 35, 2, 30, 1))
sketch3.addConstraint(Sketcher.Constraint("Equal", 0, 15))
sketch3.addConstraint(Sketcher.Constraint("Equal", 15, 21))
sketch3.addConstraint(Sketcher.Constraint("Equal", 21, 31))
sketch3.addConstraint(Sketcher.Constraint("Symmetric", 15, 3, 21, 3, -2))
sketch3.addConstraint(Sketcher.Constraint("Symmetric", 0, 3, 31, 3, -2))
sketch3.addConstraint(Sketcher.Constraint("Symmetric", 10, 2, 23, 2, -2))
sketch3.addConstraint(Sketcher.Constraint("Symmetric", 7, 2, 26, 2, -2))
sketch3.addConstraint(Sketcher.Constraint("Symmetric", 3, 2, 32, 2, -2))
sketch3.addConstraint(Sketcher.Constraint("Horizontal", 0, 3, 15, 3))
sketch3.addConstraint(Sketcher.Constraint("Horizontal", 3, 2, 6, 2))
sketch3.addConstraint(Sketcher.Constraint("Horizontal", 7, 2, 10, 2))
sketch3.addConstraint(Sketcher.Constraint("Horizontal", 9, 2, 12, 2))
sketch3.addConstraint(Sketcher.Constraint("Horizontal", 11, 2, 16, 2))
sketch3.addConstraint(Sketcher.Constraint("Equal", 5, 33))
sketch3.addConstraint(Sketcher.Constraint("DistanceX", 11, 1, 11, 2, 2.0))
sketch3.addConstraint(Sketcher.Constraint("DistanceY", 2, 2, 2, 1, 9.0))
sketch3.addConstraint(Sketcher.Constraint("Radius", 0, 2.25))
sketch3.addConstraint(Sketcher.Constraint("DistanceX", 3, 1, 3, 2, 1.5))
sketch3.addConstraint(Sketcher.Constraint("DistanceY", -1, 1, 0, 1, 14.0))
sketch3.addConstraint(Sketcher.Constraint("DistanceX", 2, 2, -1, 1, 58.0))
sketch3.addConstraint(Sketcher.Constraint("DistanceX", 7, 2, -1, 1, 49.0))
sketch3.addConstraint(Sketcher.Constraint("DistanceX", 10, 2, -1, 1, 9.0))
sketch3.addConstraint(Sketcher.Constraint("DistanceY", -1, 1, 0, 3, 14.25))
pocket1 = doc.addObject("PartDesign::Pocket", "Pocket")
body.addObject(pocket1)
pocket1.Profile = sketch3
pocket1.Length = 228

# Sketch on XZ plane
sketch4 = doc.addObject("Sketcher::SketchObject", "Sketch003")
body.addObject(sketch4)
sketch4.AttachmentSupport = (doc.XZ_Plane, [""])
sketch4.MapMode = "FlatFace"
sketch4.addGeometry(Part.LineSegment(App.Vector(-64, 0, 0), App.Vector(-64, -250, 0)), False)
sketch4.addGeometry(Part.ArcOfCircle(Part.Circle(App.Vector(0, -250, 0), App.Vector(0, 0, 1), 64), math.radians(180), math.radians(360)), False)
sketch4.addGeometry(Part.LineSegment(App.Vector(64, -250, 0), App.Vector(64, 0, 0)), False)
sketch4.addGeometry(Part.ArcOfCircle(Part.Circle(App.Vector(0, 0, 0), App.Vector(0, 0, 1), 64), math.radians(0), math.radians(180)), False)
sketch4.addGeometry(Part.LineSegment(App.Vector(-59, -250, 0), App.Vector(-59, 0, 0)), False)
sketch4.addGeometry(Part.ArcOfCircle(Part.Circle(App.Vector(0, 0, 0), App.Vector(0, 0, 1), 59), math.radians(0), math.radians(180)), False)
sketch4.addGeometry(Part.LineSegment(App.Vector(59, 0, 0), App.Vector(59, -250, 0)), False)
sketch4.addGeometry(Part.ArcOfCircle(Part.Circle(App.Vector(0, -250, 0), App.Vector(0, 0, 1), 59), math.radians(180), math.radians(360)), False)
sketch4.addConstraint(Sketcher.Constraint("Tangent", 0, 2, 1, 1))
sketch4.addConstraint(Sketcher.Constraint("Tangent", 1, 2, 2, 1))
sketch4.addConstraint(Sketcher.Constraint("Tangent", 2, 2, 3, 1))
sketch4.addConstraint(Sketcher.Constraint("Tangent", 3, 2, 0, 1))
sketch4.addConstraint(Sketcher.Constraint("Tangent", 4, 2, 5, 2))
sketch4.addConstraint(Sketcher.Constraint("Tangent", 5, 1, 6, 1))
sketch4.addConstraint(Sketcher.Constraint("Tangent", 6, 2, 7, 2))
sketch4.addConstraint(Sketcher.Constraint("Tangent", 7, 1, 4, 1))
sketch4.addConstraint(Sketcher.Constraint("Vertical", 0))
sketch4.addConstraint(Sketcher.Constraint("Vertical", 2))
sketch4.addConstraint(Sketcher.Constraint("Vertical", 4))
sketch4.addConstraint(Sketcher.Constraint("Vertical", 6))
sketch4.addConstraint(Sketcher.Constraint("Coincident", 3, 3, -1, 1))
sketch4.addConstraint(Sketcher.Constraint("Coincident", 5, 3, -1, 1))
sketch4.addConstraint(Sketcher.Constraint("Horizontal", 7, 3, 0, 2))
sketch4.addConstraint(Sketcher.Constraint("Radius", 1, 64.0))
sketch4.addConstraint(Sketcher.Constraint("Radius", 5, 59.0))
sketch4.addConstraint(Sketcher.Constraint("DistanceY", 0, 2, 0, 1, 250.0))
pad3 = doc.addObject("PartDesign::Pad", "Pad002")
body.addObject(pad3)
pad3.Profile = sketch4
pad3.Length = 20

# Sketch on XZ plane
sketch5 = doc.addObject("Sketcher::SketchObject", "Sketch004")
body.addObject(sketch5)
sketch5.AttachmentSupport = (doc.XZ_Plane, [""])
sketch5.MapMode = "FlatFace"
sketch5.AttachmentOffset = App.Placement(App.Vector(0, 0, -5), App.Rotation())
sketch5.addGeometry(Part.LineSegment(App.Vector(-56, -258, 0), App.Vector(-56, -250, 0)), False)
sketch5.addGeometry(Part.LineSegment(App.Vector(-56, -250, 0), App.Vector(-45, -250, 0)), False)
sketch5.addGeometry(Part.LineSegment(App.Vector(-45, -250, 0), App.Vector(-45, -258, 0)), False)
sketch5.addGeometry(Part.LineSegment(App.Vector(-45, -258, 0), App.Vector(-56, -258, 0)), False)
sketch5.addGeometry(Part.LineSegment(App.Vector(-56, -203, 0), App.Vector(-56, -195, 0)), False)
sketch5.addGeometry(Part.LineSegment(App.Vector(-56, -195, 0), App.Vector(-45, -195, 0)), False)
sketch5.addGeometry(Part.LineSegment(App.Vector(-45, -195, 0), App.Vector(-45, -203, 0)), False)
sketch5.addGeometry(Part.LineSegment(App.Vector(-45, -203, 0), App.Vector(-56, -203, 0)), False)
sketch5.addGeometry(Part.LineSegment(App.Vector(-56, -148, 0), App.Vector(-56, -140, 0)), False)
sketch5.addGeometry(Part.LineSegment(App.Vector(-56, -140, 0), App.Vector(-45, -140, 0)), False)
sketch5.addGeometry(Part.LineSegment(App.Vector(-45, -140, 0), App.Vector(-45, -148, 0)), False)
sketch5.addGeometry(Part.LineSegment(App.Vector(-45, -148, 0), App.Vector(-56, -148, 0)), False)
sketch5.addGeometry(Part.LineSegment(App.Vector(-56, -93, 0), App.Vector(-56, -85, 0)), False)
sketch5.addGeometry(Part.LineSegment(App.Vector(-56, -85, 0), App.Vector(-45, -85, 0)), False)
sketch5.addGeometry(Part.LineSegment(App.Vector(-45, -85, 0), App.Vector(-45, -93, 0)), False)
sketch5.addGeometry(Part.LineSegment(App.Vector(-45, -93, 0), App.Vector(-56, -93, 0)), False)
sketch5.addGeometry(Part.LineSegment(App.Vector(-56, -38, 0), App.Vector(-56, -30, 0)), False)
sketch5.addGeometry(Part.LineSegment(App.Vector(-56, -30, 0), App.Vector(-45, -30, 0)), False)
sketch5.addGeometry(Part.LineSegment(App.Vector(-45, -30, 0), App.Vector(-45, -38, 0)), False)
sketch5.addGeometry(Part.LineSegment(App.Vector(-45, -38, 0), App.Vector(-56, -38, 0)), False)
sketch5.addGeometry(Part.LineSegment(App.Vector(45, -148, 0), App.Vector(45, -140, 0)), False)
sketch5.addGeometry(Part.LineSegment(App.Vector(45, -140, 0), App.Vector(56, -140, 0)), False)
sketch5.addGeometry(Part.LineSegment(App.Vector(56, -140, 0), App.Vector(56, -148, 0)), False)
sketch5.addGeometry(Part.LineSegment(App.Vector(56, -148, 0), App.Vector(45, -148, 0)), False)
sketch5.addGeometry(Part.LineSegment(App.Vector(45, -203, 0), App.Vector(45, -195, 0)), False)
sketch5.addGeometry(Part.LineSegment(App.Vector(45, -195, 0), App.Vector(56, -195, 0)), False)
sketch5.addGeometry(Part.LineSegment(App.Vector(56, -195, 0), App.Vector(56, -203, 0)), False)
sketch5.addGeometry(Part.LineSegment(App.Vector(56, -203, 0), App.Vector(45, -203, 0)), False)
sketch5.addGeometry(Part.LineSegment(App.Vector(45, -258, 0), App.Vector(45, -250, 0)), False)
sketch5.addGeometry(Part.LineSegment(App.Vector(45, -250, 0), App.Vector(56, -250, 0)), False)
sketch5.addGeometry(Part.LineSegment(App.Vector(56, -250, 0), App.Vector(56, -258, 0)), False)
sketch5.addGeometry(Part.LineSegment(App.Vector(56, -258, 0), App.Vector(45, -258, 0)), False)
sketch5.addGeometry(Part.LineSegment(App.Vector(45, -93, 0), App.Vector(45, -85, 0)), False)
sketch5.addGeometry(Part.LineSegment(App.Vector(45, -85, 0), App.Vector(56, -85, 0)), False)
sketch5.addGeometry(Part.LineSegment(App.Vector(56, -85, 0), App.Vector(56, -93, 0)), False)
sketch5.addGeometry(Part.LineSegment(App.Vector(56, -93, 0), App.Vector(45, -93, 0)), False)
sketch5.addGeometry(Part.LineSegment(App.Vector(45, -38, 0), App.Vector(45, -30, 0)), False)
sketch5.addGeometry(Part.LineSegment(App.Vector(45, -30, 0), App.Vector(56, -30, 0)), False)
sketch5.addGeometry(Part.LineSegment(App.Vector(56, -30, 0), App.Vector(56, -38, 0)), False)
sketch5.addGeometry(Part.LineSegment(App.Vector(56, -38, 0), App.Vector(45, -38, 0)), False)
sketch5.addConstraint(Sketcher.Constraint("Coincident", 0, 2, 1, 1))
sketch5.addConstraint(Sketcher.Constraint("Coincident", 1, 2, 2, 1))
sketch5.addConstraint(Sketcher.Constraint("Coincident", 2, 2, 3, 1))
sketch5.addConstraint(Sketcher.Constraint("Coincident", 3, 2, 0, 1))
sketch5.addConstraint(Sketcher.Constraint("Coincident", 4, 2, 5, 1))
sketch5.addConstraint(Sketcher.Constraint("Coincident", 5, 2, 6, 1))
sketch5.addConstraint(Sketcher.Constraint("Coincident", 6, 2, 7, 1))
sketch5.addConstraint(Sketcher.Constraint("Coincident", 7, 2, 4, 1))
sketch5.addConstraint(Sketcher.Constraint("Coincident", 8, 2, 9, 1))
sketch5.addConstraint(Sketcher.Constraint("Coincident", 9, 2, 10, 1))
sketch5.addConstraint(Sketcher.Constraint("Coincident", 10, 2, 11, 1))
sketch5.addConstraint(Sketcher.Constraint("Coincident", 11, 2, 8, 1))
sketch5.addConstraint(Sketcher.Constraint("Coincident", 12, 2, 13, 1))
sketch5.addConstraint(Sketcher.Constraint("Coincident", 13, 2, 14, 1))
sketch5.addConstraint(Sketcher.Constraint("Coincident", 14, 2, 15, 1))
sketch5.addConstraint(Sketcher.Constraint("Coincident", 15, 2, 12, 1))
sketch5.addConstraint(Sketcher.Constraint("Coincident", 16, 2, 17, 1))
sketch5.addConstraint(Sketcher.Constraint("Coincident", 17, 2, 18, 1))
sketch5.addConstraint(Sketcher.Constraint("Coincident", 18, 2, 19, 1))
sketch5.addConstraint(Sketcher.Constraint("Coincident", 19, 2, 16, 1))
sketch5.addConstraint(Sketcher.Constraint("Coincident", 20, 2, 21, 1))
sketch5.addConstraint(Sketcher.Constraint("Coincident", 21, 2, 22, 1))
sketch5.addConstraint(Sketcher.Constraint("Coincident", 22, 2, 23, 1))
sketch5.addConstraint(Sketcher.Constraint("Coincident", 23, 2, 20, 1))
sketch5.addConstraint(Sketcher.Constraint("Coincident", 24, 2, 25, 1))
sketch5.addConstraint(Sketcher.Constraint("Coincident", 25, 2, 26, 1))
sketch5.addConstraint(Sketcher.Constraint("Coincident", 26, 2, 27, 1))
sketch5.addConstraint(Sketcher.Constraint("Coincident", 27, 2, 24, 1))
sketch5.addConstraint(Sketcher.Constraint("Coincident", 28, 2, 29, 1))
sketch5.addConstraint(Sketcher.Constraint("Coincident", 29, 2, 30, 1))
sketch5.addConstraint(Sketcher.Constraint("Coincident", 30, 2, 31, 1))
sketch5.addConstraint(Sketcher.Constraint("Coincident", 31, 2, 28, 1))
sketch5.addConstraint(Sketcher.Constraint("Coincident", 32, 2, 33, 1))
sketch5.addConstraint(Sketcher.Constraint("Coincident", 33, 2, 34, 1))
sketch5.addConstraint(Sketcher.Constraint("Coincident", 34, 2, 35, 1))
sketch5.addConstraint(Sketcher.Constraint("Coincident", 35, 2, 32, 1))
sketch5.addConstraint(Sketcher.Constraint("Coincident", 36, 2, 37, 1))
sketch5.addConstraint(Sketcher.Constraint("Coincident", 37, 2, 38, 1))
sketch5.addConstraint(Sketcher.Constraint("Coincident", 38, 2, 39, 1))
sketch5.addConstraint(Sketcher.Constraint("Coincident", 39, 2, 36, 1))
sketch5.addConstraint(Sketcher.Constraint("Vertical", 0))
sketch5.addConstraint(Sketcher.Constraint("Horizontal", 1))
sketch5.addConstraint(Sketcher.Constraint("Vertical", 2))
sketch5.addConstraint(Sketcher.Constraint("Horizontal", 3))
sketch5.addConstraint(Sketcher.Constraint("Vertical", 4))
sketch5.addConstraint(Sketcher.Constraint("Horizontal", 5))
sketch5.addConstraint(Sketcher.Constraint("Vertical", 6))
sketch5.addConstraint(Sketcher.Constraint("Horizontal", 7))
sketch5.addConstraint(Sketcher.Constraint("Vertical", 8))
sketch5.addConstraint(Sketcher.Constraint("Horizontal", 9))
sketch5.addConstraint(Sketcher.Constraint("Vertical", 10))
sketch5.addConstraint(Sketcher.Constraint("Horizontal", 11))
sketch5.addConstraint(Sketcher.Constraint("Vertical", 12))
sketch5.addConstraint(Sketcher.Constraint("Horizontal", 13))
sketch5.addConstraint(Sketcher.Constraint("Vertical", 14))
sketch5.addConstraint(Sketcher.Constraint("Horizontal", 15))
sketch5.addConstraint(Sketcher.Constraint("Vertical", 16))
sketch5.addConstraint(Sketcher.Constraint("Horizontal", 17))
sketch5.addConstraint(Sketcher.Constraint("Vertical", 18))
sketch5.addConstraint(Sketcher.Constraint("Horizontal", 19))
sketch5.addConstraint(Sketcher.Constraint("Vertical", 20))
sketch5.addConstraint(Sketcher.Constraint("Horizontal", 21))
sketch5.addConstraint(Sketcher.Constraint("Vertical", 22))
sketch5.addConstraint(Sketcher.Constraint("Horizontal", 23))
sketch5.addConstraint(Sketcher.Constraint("Vertical", 24))
sketch5.addConstraint(Sketcher.Constraint("Horizontal", 25))
sketch5.addConstraint(Sketcher.Constraint("Vertical", 26))
sketch5.addConstraint(Sketcher.Constraint("Horizontal", 27))
sketch5.addConstraint(Sketcher.Constraint("Vertical", 28))
sketch5.addConstraint(Sketcher.Constraint("Horizontal", 29))
sketch5.addConstraint(Sketcher.Constraint("Vertical", 30))
sketch5.addConstraint(Sketcher.Constraint("Horizontal", 31))
sketch5.addConstraint(Sketcher.Constraint("Vertical", 32))
sketch5.addConstraint(Sketcher.Constraint("Horizontal", 33))
sketch5.addConstraint(Sketcher.Constraint("Vertical", 34))
sketch5.addConstraint(Sketcher.Constraint("Horizontal", 35))
sketch5.addConstraint(Sketcher.Constraint("Vertical", 36))
sketch5.addConstraint(Sketcher.Constraint("Horizontal", 37))
sketch5.addConstraint(Sketcher.Constraint("Vertical", 38))
sketch5.addConstraint(Sketcher.Constraint("Horizontal", 39))
sketch5.addConstraint(Sketcher.Constraint("Symmetric", 9, 2, 20, 2, -2))
sketch5.addConstraint(Sketcher.Constraint("Symmetric", 11, 2, 22, 2, -2))
sketch5.addConstraint(Sketcher.Constraint("Symmetric", 5, 2, 24, 2, -2))
sketch5.addConstraint(Sketcher.Constraint("Symmetric", 7, 2, 26, 2, -2))
sketch5.addConstraint(Sketcher.Constraint("Symmetric", 1, 2, 28, 2, -2))
sketch5.addConstraint(Sketcher.Constraint("Symmetric", 3, 2, 30, 2, -2))
sketch5.addConstraint(Sketcher.Constraint("Symmetric", 13, 2, 32, 2, -2))
sketch5.addConstraint(Sketcher.Constraint("Symmetric", 15, 2, 34, 2, -2))
sketch5.addConstraint(Sketcher.Constraint("Symmetric", 17, 2, 36, 2, -2))
sketch5.addConstraint(Sketcher.Constraint("Symmetric", 19, 2, 38, 2, -2))
sketch5.addConstraint(Sketcher.Constraint("Vertical", 3, 2, 4, 2))
sketch5.addConstraint(Sketcher.Constraint("Vertical", 2, 2, 5, 2))
sketch5.addConstraint(Sketcher.Constraint("Vertical", 7, 2, 8, 2))
sketch5.addConstraint(Sketcher.Constraint("Vertical", 6, 2, 9, 2))
sketch5.addConstraint(Sketcher.Constraint("Vertical", 11, 2, 12, 2))
sketch5.addConstraint(Sketcher.Constraint("Vertical", 10, 2, 13, 2))
sketch5.addConstraint(Sketcher.Constraint("Vertical", 15, 2, 16, 2))
sketch5.addConstraint(Sketcher.Constraint("Vertical", 14, 2, 17, 2))
sketch5.addConstraint(Sketcher.Constraint("Equal", 2, 4))
sketch5.addConstraint(Sketcher.Constraint("Equal", 6, 8))
sketch5.addConstraint(Sketcher.Constraint("Equal", 10, 12))
sketch5.addConstraint(Sketcher.Constraint("Equal", 14, 16))
sketch5.addConstraint(Sketcher.Constraint("DistanceY", 0, 1, 0, 2, 8.0))
sketch5.addConstraint(Sketcher.Constraint("DistanceY", 0, 2, -1, 1, 250.0))
sketch5.addConstraint(Sketcher.Constraint("DistanceY", 4, 2, -1, 1, 195.0))
sketch5.addConstraint(Sketcher.Constraint("DistanceY", 8, 2, -1, 1, 140.0))
sketch5.addConstraint(Sketcher.Constraint("DistanceY", 12, 2, -1, 1, 85.0))
sketch5.addConstraint(Sketcher.Constraint("DistanceY", 16, 2, -1, 1, 30.0))
sketch5.addConstraint(Sketcher.Constraint("DistanceX", 8, 2, 21, 2, 113.0))
sketch5.addConstraint(Sketcher.Constraint("DistanceX", 1, 1, 1, 2, 11.583853))
pocket2 = doc.addObject("PartDesign::Pocket", "Pocket001")
body.addObject(pocket2)
pocket2.Profile = sketch5
pocket2.Length = 20
pocket2.Reversed = True

# Sketch on XZ plane
sketch6 = doc.addObject("Sketcher::SketchObject", "Sketch005")
body.addObject(sketch6)
sketch6.AttachmentSupport = (doc.XZ_Plane, [""])
sketch6.MapMode = "FlatFace"
sketch6.addGeometry(Part.Circle(App.Vector(0, 54.5, 0), App.Vector(0, 0, 1), 1.5), False)
sketch6.addGeometry(Part.Circle(App.Vector(0, -304.5, 0), App.Vector(0, 0, 1), 1.5), False)
sketch6.addConstraint(Sketcher.Constraint("Equal", 0, 1))
sketch6.addConstraint(Sketcher.Constraint("PointOnObject", 0, 3, -2))
sketch6.addConstraint(Sketcher.Constraint("PointOnObject", 1, 3, -2))
sketch6.addConstraint(Sketcher.Constraint("Diameter", 0, 3.0))
sketch6.addConstraint(Sketcher.Constraint("DistanceY", -1, 1, 0, 3, 54.471661))
sketch6.addConstraint(Sketcher.Constraint("DistanceY", 1, 3, -1, 1, 304.513619))
pocket3 = doc.addObject("PartDesign::Pocket", "Pocket002")
body.addObject(pocket3)
pocket3.Profile = sketch6
pocket3.Length = 25

doc.recompute()
